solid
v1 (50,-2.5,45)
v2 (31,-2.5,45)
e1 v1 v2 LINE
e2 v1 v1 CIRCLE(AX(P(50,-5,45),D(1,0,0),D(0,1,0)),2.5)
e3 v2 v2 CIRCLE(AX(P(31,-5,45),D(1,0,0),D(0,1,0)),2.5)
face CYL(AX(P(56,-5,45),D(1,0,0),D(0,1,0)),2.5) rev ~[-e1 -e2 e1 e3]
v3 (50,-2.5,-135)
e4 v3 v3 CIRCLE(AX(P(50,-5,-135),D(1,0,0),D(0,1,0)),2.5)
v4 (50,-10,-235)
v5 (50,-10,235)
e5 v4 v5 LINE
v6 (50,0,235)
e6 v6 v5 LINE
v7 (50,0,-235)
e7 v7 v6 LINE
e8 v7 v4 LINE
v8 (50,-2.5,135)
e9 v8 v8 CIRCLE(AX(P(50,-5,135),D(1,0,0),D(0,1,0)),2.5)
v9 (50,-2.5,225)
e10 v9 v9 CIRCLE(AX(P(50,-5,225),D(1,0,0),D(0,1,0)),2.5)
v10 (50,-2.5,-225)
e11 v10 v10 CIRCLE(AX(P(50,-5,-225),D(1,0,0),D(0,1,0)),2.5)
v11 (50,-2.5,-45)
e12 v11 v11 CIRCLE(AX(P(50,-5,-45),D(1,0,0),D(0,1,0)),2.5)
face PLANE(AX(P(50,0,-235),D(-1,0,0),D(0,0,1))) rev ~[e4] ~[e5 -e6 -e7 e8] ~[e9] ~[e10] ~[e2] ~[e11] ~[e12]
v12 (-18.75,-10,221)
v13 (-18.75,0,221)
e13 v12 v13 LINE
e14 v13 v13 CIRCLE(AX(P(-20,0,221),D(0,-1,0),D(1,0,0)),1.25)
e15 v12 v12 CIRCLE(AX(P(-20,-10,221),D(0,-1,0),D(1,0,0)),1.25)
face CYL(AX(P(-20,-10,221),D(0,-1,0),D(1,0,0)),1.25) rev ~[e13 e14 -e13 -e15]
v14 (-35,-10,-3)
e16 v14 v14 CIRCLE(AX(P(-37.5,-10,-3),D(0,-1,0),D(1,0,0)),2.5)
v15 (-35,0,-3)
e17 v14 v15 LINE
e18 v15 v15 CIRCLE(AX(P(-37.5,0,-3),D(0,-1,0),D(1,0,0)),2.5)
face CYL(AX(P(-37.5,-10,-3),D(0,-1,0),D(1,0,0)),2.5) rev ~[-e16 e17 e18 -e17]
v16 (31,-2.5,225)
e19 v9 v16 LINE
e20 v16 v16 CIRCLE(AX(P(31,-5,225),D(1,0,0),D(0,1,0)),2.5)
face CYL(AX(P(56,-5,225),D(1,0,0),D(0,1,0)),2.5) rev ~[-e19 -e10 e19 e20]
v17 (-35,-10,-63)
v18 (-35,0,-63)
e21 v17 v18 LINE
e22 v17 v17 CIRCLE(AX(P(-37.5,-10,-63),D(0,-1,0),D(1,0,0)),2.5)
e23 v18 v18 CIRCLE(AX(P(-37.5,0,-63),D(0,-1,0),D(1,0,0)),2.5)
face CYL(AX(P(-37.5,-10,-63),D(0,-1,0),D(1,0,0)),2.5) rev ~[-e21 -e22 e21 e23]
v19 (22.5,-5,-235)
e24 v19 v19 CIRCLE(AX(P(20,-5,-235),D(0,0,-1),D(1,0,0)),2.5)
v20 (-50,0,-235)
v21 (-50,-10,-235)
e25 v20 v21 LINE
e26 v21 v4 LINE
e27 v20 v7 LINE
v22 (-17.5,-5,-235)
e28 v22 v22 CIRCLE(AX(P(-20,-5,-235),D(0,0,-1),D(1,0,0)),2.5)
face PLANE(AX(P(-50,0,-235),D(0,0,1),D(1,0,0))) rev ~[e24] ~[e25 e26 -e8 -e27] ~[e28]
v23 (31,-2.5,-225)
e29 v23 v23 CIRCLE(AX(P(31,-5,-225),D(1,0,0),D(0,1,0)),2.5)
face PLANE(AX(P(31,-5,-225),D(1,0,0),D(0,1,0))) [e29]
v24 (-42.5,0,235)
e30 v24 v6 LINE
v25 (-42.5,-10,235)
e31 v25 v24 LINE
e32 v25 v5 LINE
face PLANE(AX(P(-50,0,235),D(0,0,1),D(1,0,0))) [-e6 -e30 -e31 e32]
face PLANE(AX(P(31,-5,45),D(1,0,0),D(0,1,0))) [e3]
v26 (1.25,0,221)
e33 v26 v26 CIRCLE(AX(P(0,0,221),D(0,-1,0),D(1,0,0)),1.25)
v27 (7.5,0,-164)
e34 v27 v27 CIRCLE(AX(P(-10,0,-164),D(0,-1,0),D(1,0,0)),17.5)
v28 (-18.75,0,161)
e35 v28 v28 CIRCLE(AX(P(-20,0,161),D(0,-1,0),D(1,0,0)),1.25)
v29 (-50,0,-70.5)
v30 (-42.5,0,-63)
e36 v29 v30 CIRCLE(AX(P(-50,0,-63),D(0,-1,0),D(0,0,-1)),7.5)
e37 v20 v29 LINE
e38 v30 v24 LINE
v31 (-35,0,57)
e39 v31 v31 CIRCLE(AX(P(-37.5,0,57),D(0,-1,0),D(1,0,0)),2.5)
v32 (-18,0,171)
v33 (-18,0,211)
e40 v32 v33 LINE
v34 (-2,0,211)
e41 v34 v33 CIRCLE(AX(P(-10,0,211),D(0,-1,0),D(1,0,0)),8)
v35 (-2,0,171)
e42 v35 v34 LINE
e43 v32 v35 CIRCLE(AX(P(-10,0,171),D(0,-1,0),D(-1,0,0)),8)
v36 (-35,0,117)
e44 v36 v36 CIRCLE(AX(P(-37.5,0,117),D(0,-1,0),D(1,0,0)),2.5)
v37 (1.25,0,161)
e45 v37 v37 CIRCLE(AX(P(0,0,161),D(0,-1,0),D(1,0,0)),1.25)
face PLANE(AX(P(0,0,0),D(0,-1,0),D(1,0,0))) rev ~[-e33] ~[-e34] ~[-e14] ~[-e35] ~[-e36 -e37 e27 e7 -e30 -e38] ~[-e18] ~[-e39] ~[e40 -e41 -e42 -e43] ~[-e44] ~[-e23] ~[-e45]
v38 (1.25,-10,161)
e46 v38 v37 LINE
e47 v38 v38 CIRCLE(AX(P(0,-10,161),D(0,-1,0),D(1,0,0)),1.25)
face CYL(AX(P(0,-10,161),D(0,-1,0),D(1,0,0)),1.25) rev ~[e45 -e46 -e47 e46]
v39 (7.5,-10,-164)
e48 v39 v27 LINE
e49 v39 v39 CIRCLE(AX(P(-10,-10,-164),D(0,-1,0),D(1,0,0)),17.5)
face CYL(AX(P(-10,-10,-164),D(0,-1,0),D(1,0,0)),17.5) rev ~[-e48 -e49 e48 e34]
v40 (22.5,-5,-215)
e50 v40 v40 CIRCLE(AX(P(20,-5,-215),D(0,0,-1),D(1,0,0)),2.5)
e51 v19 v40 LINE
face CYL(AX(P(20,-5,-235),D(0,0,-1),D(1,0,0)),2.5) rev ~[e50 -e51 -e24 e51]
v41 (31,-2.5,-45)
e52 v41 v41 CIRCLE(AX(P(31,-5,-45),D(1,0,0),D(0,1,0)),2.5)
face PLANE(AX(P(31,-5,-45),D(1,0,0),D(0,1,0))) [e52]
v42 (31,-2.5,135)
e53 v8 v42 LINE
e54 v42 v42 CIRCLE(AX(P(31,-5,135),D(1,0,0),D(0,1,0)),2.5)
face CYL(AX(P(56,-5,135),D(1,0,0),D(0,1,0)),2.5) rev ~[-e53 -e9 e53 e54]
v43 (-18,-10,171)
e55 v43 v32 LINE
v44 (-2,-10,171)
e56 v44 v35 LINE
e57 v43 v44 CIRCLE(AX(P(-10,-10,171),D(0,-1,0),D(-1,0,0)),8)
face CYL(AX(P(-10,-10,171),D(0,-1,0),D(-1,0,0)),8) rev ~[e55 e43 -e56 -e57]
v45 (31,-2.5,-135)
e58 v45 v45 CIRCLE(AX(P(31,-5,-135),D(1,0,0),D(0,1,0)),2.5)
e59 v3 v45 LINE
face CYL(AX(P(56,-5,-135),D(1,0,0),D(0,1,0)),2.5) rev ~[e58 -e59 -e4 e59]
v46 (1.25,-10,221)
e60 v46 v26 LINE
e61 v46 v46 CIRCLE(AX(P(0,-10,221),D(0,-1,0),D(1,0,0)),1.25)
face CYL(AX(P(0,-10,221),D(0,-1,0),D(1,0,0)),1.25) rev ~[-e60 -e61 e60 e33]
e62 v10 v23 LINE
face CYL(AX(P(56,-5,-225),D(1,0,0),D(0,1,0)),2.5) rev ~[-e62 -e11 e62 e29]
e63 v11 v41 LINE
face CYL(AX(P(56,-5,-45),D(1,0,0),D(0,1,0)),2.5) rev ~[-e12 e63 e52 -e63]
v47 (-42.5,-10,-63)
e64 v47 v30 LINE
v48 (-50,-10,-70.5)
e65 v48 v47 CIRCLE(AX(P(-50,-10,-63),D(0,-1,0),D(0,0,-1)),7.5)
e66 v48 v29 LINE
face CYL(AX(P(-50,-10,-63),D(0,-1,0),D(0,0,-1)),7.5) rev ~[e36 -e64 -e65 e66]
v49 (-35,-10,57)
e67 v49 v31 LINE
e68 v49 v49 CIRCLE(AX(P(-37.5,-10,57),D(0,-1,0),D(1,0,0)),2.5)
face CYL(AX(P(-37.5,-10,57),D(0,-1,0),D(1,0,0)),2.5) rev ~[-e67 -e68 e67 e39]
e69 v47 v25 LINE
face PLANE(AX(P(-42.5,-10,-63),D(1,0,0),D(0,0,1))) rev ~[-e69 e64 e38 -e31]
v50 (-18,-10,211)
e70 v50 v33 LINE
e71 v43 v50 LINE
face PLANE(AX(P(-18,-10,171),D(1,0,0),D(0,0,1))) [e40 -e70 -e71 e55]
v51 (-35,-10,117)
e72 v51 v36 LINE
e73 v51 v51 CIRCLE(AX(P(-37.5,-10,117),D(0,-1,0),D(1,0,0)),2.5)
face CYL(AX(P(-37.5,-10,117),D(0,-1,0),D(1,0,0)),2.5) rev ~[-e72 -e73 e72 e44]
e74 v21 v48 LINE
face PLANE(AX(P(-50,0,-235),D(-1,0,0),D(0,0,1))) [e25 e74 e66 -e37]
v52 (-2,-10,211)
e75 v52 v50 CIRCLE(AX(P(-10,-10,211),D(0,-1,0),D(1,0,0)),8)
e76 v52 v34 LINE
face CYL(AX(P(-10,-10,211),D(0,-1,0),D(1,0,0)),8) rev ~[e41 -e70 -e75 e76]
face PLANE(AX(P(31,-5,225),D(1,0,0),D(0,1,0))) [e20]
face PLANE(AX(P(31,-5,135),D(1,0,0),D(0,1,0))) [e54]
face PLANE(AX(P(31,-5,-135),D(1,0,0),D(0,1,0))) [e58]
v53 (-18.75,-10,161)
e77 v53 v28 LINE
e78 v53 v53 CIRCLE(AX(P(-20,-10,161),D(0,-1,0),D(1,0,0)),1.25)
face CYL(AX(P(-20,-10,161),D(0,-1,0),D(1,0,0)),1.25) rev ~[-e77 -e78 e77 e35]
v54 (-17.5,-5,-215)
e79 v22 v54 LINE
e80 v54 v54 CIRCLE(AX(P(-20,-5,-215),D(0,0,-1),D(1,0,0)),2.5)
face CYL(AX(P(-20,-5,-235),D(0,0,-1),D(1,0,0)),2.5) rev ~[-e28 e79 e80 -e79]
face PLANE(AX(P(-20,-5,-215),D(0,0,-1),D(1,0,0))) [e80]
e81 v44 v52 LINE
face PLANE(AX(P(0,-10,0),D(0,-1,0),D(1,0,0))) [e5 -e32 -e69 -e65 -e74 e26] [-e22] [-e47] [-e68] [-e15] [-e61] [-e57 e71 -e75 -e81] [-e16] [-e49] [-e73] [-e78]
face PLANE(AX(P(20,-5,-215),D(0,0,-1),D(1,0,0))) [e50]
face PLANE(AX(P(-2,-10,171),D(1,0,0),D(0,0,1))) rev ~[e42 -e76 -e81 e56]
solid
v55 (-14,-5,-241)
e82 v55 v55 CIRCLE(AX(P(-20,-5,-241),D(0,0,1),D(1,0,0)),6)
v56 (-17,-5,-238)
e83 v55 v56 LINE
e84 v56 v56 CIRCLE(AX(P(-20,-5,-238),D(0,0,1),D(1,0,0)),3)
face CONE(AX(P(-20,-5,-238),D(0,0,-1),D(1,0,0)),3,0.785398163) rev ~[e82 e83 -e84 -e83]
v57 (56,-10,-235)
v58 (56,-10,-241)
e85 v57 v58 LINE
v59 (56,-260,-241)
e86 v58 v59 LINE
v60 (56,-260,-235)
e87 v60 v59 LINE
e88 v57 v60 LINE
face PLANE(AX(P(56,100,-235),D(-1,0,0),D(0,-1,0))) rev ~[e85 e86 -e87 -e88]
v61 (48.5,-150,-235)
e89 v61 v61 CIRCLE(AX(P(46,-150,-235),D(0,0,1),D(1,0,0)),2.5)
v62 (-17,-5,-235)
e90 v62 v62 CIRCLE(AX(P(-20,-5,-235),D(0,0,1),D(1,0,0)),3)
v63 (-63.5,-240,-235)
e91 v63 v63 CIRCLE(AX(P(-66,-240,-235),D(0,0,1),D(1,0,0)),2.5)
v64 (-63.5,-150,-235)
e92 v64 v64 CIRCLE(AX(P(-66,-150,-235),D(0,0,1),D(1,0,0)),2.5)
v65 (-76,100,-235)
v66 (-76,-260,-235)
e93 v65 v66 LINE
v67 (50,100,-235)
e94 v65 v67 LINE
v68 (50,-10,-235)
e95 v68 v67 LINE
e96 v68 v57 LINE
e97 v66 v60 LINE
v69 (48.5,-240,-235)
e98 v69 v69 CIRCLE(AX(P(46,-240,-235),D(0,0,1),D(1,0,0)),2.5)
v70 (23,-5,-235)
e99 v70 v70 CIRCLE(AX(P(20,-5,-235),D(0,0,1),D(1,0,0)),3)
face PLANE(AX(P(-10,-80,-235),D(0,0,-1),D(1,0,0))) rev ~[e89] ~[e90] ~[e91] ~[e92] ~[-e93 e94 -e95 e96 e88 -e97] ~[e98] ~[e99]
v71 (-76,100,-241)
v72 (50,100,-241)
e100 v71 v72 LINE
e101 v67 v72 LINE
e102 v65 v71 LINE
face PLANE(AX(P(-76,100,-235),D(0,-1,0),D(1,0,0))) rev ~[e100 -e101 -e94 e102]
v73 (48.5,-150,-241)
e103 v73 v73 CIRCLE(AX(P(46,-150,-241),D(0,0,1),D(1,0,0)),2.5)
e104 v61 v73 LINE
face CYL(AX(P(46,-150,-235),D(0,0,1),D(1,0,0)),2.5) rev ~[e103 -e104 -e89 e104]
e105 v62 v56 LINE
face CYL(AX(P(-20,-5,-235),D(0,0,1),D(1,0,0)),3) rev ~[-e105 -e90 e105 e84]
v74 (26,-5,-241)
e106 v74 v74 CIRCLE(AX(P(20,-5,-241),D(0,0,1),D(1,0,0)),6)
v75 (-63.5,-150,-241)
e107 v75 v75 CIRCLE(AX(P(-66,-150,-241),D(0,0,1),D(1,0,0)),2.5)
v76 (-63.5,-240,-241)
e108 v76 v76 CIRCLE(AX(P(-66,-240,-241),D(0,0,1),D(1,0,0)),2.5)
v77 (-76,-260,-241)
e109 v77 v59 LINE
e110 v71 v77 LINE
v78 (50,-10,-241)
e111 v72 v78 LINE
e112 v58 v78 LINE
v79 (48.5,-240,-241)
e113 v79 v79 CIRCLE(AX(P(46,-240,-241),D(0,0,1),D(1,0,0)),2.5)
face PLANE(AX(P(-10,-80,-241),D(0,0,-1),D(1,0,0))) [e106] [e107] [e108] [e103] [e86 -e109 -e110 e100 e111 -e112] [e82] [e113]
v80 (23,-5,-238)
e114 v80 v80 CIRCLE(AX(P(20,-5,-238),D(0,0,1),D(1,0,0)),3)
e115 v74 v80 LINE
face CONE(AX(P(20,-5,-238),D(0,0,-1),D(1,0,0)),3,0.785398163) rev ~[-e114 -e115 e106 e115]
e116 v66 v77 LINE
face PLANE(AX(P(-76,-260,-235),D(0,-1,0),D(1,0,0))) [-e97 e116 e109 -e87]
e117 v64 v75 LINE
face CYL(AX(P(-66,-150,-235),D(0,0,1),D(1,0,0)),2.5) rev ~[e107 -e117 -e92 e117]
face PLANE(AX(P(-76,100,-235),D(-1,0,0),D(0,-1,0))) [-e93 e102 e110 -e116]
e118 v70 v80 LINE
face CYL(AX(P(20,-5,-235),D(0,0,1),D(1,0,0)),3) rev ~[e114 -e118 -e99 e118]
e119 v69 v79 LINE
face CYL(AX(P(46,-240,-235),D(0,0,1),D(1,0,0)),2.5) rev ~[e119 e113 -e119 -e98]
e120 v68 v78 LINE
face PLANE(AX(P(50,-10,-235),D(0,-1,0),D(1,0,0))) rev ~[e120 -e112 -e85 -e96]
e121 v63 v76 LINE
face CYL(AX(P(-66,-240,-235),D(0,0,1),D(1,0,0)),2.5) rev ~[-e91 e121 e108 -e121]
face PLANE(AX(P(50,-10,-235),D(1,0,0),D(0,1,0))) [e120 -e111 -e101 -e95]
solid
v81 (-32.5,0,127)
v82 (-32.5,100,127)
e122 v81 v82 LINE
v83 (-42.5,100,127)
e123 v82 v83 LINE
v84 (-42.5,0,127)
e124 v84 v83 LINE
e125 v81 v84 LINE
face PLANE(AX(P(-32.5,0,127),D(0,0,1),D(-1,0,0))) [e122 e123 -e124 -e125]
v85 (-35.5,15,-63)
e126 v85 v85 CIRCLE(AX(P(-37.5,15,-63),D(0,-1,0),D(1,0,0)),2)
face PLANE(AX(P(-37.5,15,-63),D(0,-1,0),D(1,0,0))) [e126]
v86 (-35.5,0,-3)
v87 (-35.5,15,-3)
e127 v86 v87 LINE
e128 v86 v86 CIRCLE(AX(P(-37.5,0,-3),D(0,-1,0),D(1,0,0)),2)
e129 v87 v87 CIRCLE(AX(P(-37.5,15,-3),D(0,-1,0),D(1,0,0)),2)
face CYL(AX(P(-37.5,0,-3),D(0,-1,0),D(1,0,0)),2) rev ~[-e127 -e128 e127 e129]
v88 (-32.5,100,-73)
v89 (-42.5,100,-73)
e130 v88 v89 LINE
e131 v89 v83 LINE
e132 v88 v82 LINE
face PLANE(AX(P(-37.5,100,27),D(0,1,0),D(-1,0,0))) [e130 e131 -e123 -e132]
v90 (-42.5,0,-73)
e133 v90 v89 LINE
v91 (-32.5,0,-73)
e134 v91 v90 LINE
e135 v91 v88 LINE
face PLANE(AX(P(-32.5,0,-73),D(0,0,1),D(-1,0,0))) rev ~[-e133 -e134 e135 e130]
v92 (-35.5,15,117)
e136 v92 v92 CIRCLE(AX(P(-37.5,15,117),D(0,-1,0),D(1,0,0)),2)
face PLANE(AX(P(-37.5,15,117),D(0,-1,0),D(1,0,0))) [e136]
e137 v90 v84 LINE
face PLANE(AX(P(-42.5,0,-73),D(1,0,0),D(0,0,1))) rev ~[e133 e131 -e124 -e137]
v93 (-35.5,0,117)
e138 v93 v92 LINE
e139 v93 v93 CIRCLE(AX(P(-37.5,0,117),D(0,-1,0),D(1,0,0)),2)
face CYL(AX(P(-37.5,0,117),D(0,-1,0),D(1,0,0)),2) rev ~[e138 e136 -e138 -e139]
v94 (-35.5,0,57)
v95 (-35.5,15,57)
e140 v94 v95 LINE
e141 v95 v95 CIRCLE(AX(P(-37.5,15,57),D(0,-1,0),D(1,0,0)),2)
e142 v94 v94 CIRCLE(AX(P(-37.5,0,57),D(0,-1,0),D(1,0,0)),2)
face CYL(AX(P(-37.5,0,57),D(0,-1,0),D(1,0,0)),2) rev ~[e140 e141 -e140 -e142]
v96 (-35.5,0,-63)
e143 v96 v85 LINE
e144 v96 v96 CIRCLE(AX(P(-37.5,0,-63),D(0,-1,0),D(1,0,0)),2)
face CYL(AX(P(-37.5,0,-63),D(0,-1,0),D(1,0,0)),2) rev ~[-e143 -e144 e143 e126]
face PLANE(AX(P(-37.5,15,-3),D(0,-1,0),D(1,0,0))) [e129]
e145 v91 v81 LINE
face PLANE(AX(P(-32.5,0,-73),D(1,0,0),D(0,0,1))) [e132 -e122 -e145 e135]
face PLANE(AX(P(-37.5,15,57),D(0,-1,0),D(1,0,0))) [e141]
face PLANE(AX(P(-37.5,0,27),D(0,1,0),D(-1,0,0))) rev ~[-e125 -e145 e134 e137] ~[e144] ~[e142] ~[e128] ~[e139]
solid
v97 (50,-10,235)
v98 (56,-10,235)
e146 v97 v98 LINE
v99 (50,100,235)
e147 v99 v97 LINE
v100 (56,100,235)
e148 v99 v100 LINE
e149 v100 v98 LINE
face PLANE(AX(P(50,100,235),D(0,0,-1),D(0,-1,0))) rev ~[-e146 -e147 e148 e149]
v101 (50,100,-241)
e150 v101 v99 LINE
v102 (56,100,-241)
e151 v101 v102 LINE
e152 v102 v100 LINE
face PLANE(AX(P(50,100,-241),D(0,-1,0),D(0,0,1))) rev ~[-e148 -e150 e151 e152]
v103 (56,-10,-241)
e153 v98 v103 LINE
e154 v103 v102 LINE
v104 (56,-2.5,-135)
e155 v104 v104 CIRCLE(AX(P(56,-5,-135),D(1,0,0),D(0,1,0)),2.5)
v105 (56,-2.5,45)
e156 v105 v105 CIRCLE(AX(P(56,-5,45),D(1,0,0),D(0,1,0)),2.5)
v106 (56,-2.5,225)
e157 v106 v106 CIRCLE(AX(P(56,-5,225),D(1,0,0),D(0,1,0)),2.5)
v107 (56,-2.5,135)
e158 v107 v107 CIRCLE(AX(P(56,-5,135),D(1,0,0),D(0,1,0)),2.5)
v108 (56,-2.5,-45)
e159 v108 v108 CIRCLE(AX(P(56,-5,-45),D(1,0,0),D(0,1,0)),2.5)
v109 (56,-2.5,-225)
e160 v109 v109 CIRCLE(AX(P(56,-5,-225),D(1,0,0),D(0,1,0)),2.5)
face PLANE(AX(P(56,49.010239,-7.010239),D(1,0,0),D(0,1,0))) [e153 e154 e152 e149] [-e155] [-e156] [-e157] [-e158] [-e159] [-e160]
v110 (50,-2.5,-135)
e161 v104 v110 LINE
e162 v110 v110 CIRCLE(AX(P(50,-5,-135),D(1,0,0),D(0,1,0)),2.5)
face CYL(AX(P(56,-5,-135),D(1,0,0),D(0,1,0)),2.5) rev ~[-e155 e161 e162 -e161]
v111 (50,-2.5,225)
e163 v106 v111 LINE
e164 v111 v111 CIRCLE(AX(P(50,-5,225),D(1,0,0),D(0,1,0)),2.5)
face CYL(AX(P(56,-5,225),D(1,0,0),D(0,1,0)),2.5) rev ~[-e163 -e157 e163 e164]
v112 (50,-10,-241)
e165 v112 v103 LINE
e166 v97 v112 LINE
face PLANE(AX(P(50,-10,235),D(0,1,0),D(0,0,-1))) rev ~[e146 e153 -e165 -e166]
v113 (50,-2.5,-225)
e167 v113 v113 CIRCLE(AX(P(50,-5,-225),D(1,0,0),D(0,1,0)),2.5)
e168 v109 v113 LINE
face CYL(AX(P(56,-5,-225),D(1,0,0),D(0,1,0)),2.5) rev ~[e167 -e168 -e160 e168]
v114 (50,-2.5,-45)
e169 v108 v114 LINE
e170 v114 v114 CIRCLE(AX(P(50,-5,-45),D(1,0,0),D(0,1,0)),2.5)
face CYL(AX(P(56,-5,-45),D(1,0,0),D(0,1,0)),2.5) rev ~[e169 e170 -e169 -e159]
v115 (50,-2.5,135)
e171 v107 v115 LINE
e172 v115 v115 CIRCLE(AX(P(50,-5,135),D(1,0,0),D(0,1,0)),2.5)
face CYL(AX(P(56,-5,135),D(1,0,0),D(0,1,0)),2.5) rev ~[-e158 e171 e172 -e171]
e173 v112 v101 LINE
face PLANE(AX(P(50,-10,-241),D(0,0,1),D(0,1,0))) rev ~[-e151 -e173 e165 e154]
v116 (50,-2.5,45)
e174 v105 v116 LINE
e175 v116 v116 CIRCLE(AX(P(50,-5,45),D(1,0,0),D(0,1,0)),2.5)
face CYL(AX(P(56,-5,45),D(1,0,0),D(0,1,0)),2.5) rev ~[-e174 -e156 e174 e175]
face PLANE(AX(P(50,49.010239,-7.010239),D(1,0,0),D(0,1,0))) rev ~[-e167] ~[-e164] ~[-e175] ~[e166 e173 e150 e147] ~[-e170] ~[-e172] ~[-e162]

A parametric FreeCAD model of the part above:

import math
import FreeCAD as App
import Part
import Sketcher

V = App.Vector
Q = App.Units.Quantity


def edges_at(feature, points):
    """Names of the edges that pass closest to the given points."""
    edges = feature.Shape.Edges
    near = lambda p: min(range(len(edges)), key=lambda i: edges[i].distToShape(Part.Vertex(*p))[0])
    return sorted({f"Edge{near(p) + 1}" for p in points})


def add_polygon(sketch, points):
    """Adds a closed chain of lines whose ends are joined by coincident constraints."""
    first, n = sketch.GeometryCount, len(points)
    for a, b in zip(points, points[1:] + points[:1]):
        sketch.addGeometry(Part.LineSegment(App.Vector(*a, 0), App.Vector(*b, 0)), False)
    for i in range(n):
        sketch.addConstraint(Sketcher.Constraint("Coincident", first + i, 2, first + (i + 1) % n, 1))

doc = App.newDocument("Part")
params = doc.addObject("Spreadsheet::Sheet", "Params")
for row, (alias, value) in enumerate([
    ("sketch1_width", "100 mm"),
    ("sketch1_height", "470 mm"),
    ("pad1_length", "10 mm"),
    ("sketch2_diameter", "35 mm"),
    ("sketch2_radius", "8 mm"),
    ("sketch2_diameter2", "2.5 mm"),
    ("sketch2_height", "40 mm"),
    ("pocket1_length", "25 mm"),
    ("sketch3_radius", "7.5 mm"),
    ("sketch3_height", "298 mm"),
    ("pocket2_length", "25 mm"),
    ("sketch4_diameter", "5 mm"),
    ("pocket3_length", "25 mm"),
    ("sketch5_diameter", "5 mm"),
    ("pocket4_length", "20 mm"),
    ("sketch6_width", "10 mm"),
    ("sketch6_height", "200 mm"),
    ("pad2_length", "100 mm"),
    ("sketch7_diameter", "4 mm"),
    ("pocket5_length", "15 mm"),
    ("sketch8_width", "132 mm"),
    ("sketch8_height", "360 mm"),
    ("pad3_length", "6 mm"),
    ("sketch9_diameter", "6 mm"),
    ("pocket6_length", "25 mm"),
    ("chamfer_size", "3 mm"),
    ("chamfer_size2", "3 mm"),
    ("sketch10_diameter", "5 mm"),
    ("pocket7_length", "25 mm"),
    ("sketch11_width", "6 mm"),
    ("sketch11_height", "110 mm"),
    ("pocket8_length", "25 mm"),
    ("sketch12_width", "110 mm"),
    ("sketch12_height", "476 mm"),
    ("pad4_length", "6 mm"),
    ("sketch13_diameter", "5 mm"),
    ("pad5_length", "25 mm"),
], start=1):
    params.set(f"A{row}", alias)
    params.set(f"B{row}", "=" + value)
    params.setAlias(f"B{row}", alias)

body = doc.addObject("PartDesign::Body", "Body")

sketch1 = body.newObject("Sketcher::SketchObject", "Sketch")
sketch1.AttachmentSupport = (doc.getObject("XZ_Plane"), [""])
sketch1.MapMode = "FlatFace"
add_polygon(sketch1, [(-50, 235), (-50, -235), (50, -235), (50, 235)])
sketch1.addConstraint(Sketcher.Constraint("Vertical", 0))
sketch1.addConstraint(Sketcher.Constraint("Horizontal", 1))
sketch1.addConstraint(Sketcher.Constraint("Vertical", 2))
sketch1.addConstraint(Sketcher.Constraint("Horizontal", 3))
sketch1.addConstraint(Sketcher.Constraint("Symmetric", 0, 2, 2, 2, -1, 1))
sketch1.addConstraint(Sketcher.Constraint("DistanceX", 1, 1, 1, 2, Q("100 mm")))
sketch1.addConstraint(Sketcher.Constraint("DistanceY", 0, 2, 0, 1, Q("470 mm")))
sketch1.setExpression("Constraints[9]", "Params.sketch1_width")
sketch1.setExpression("Constraints[10]", "Params.sketch1_height")
pad1 = body.newObject("PartDesign::Pad", "Pad")
pad1.Profile = sketch1
pad1.setExpression("Length", "Params.pad1_length")

sketch2 = body.newObject("Sketcher::SketchObject", "Sketch001")
sketch2.AttachmentSupport = (doc.getObject("XZ_Plane"), [""])
sketch2.MapMode = "FlatFace"
sketch2.AttachmentOffset = App.Placement(V(0, 0, 10), App.Rotation())
sketch2.addGeometry(Part.Circle(V(-10, -164, 0), V(0, 0, 1), 17.5), False)
sketch2.addGeometry(Part.LineSegment(V(-18, 211, 0), V(-18, 171, 0)), False)
sketch2.addGeometry(Part.ArcOfCircle(Part.Circle(V(-10, 171, 0), V(0, 0, 1), 8), math.radians(180), math.radians(360)), False)
sketch2.addGeometry(Part.LineSegment(V(-2, 171, 0), V(-2, 211, 0)), False)
sketch2.addGeometry(Part.ArcOfCircle(Part.Circle(V(-10, 211, 0), V(0, 0, 1), 8), math.radians(0), math.radians(180)), False)
sketch2.addGeometry(Part.Circle(V(0, 221, 0), V(0, 0, 1), 1.2), False)
sketch2.addGeometry(Part.Circle(V(0, 161, 0), V(0, 0, 1), 1.2), False)
sketch2.addGeometry(Part.Circle(V(-20, 221, 0), V(0, 0, 1), 1.2), False)
sketch2.addGeometry(Part.Circle(V(-20, 161, 0), V(0, 0, 1), 1.2), False)
sketch2.addConstraint(Sketcher.Constraint("Tangent", 1, 2, 2, 1))
sketch2.addConstraint(Sketcher.Constraint("Tangent", 2, 2, 3, 1))
sketch2.addConstraint(Sketcher.Constraint("Tangent", 3, 2, 4, 1))
sketch2.addConstraint(Sketcher.Constraint("Tangent", 4, 2, 1, 1))
sketch2.addConstraint(Sketcher.Constraint("Vertical", 1))
sketch2.addConstraint(Sketcher.Constraint("Vertical", 3))
sketch2.addConstraint(Sketcher.Constraint("Equal", 5, 6))
sketch2.addConstraint(Sketcher.Constraint("Equal", 6, 7))
sketch2.addConstraint(Sketcher.Constraint("Equal", 7, 8))
sketch2.addConstraint(Sketcher.Constraint("PointOnObject", 5, 3, -2))
sketch2.addConstraint(Sketcher.Constraint("PointOnObject", 6, 3, -2))
sketch2.addConstraint(Sketcher.Constraint("Horizontal", 5, 3, 7, 3))
sketch2.addConstraint(Sketcher.Constraint("Horizontal", 6, 3, 8, 3))
sketch2.addConstraint(Sketcher.Constraint("Vertical", 0, 3, 2, 3))
sketch2.addConstraint(Sketcher.Constraint("Vertical", 7, 3, 8, 3))
sketch2.addConstraint(Sketcher.Constraint("Diameter", 0, Q("35 mm")))
sketch2.addConstraint(Sketcher.Constraint("Radius", 2, Q("8 mm")))
sketch2.addConstraint(Sketcher.Constraint("Diameter", 5, Q("2.5 mm")))
sketch2.addConstraint(Sketcher.Constraint("DistanceY", 1, 2, 1, 1, Q("40 mm")))
sketch2.addConstraint(Sketcher.Constraint("DistanceX", 0, 3, -1, 1, Q("10 mm")))
sketch2.addConstraint(Sketcher.Constraint("DistanceY", 0, 3, -1, 1, Q("164 mm")))
sketch2.addConstraint(Sketcher.Constraint("DistanceY", -1, 1, 2, 3, Q("171 mm")))
sketch2.addConstraint(Sketcher.Constraint("DistanceY", -1, 1, 5, 3, Q("221 mm")))
sketch2.addConstraint(Sketcher.Constraint("DistanceY", -1, 1, 6, 3, Q("161 mm")))
sketch2.addConstraint(Sketcher.Constraint("DistanceX", 7, 3, -1, 1, Q("20 mm")))
sketch2.setExpression("Constraints[15]", "Params.sketch2_diameter")
sketch2.setExpression("Constraints[16]", "Params.sketch2_radius")
sketch2.setExpression("Constraints[17]", "Params.sketch2_diameter2")
sketch2.setExpression("Constraints[18]", "Params.sketch2_height")
pocket1 = body.newObject("PartDesign::Pocket", "Pocket")
pocket1.Profile = sketch2
pocket1.setExpression("Length", "Params.pocket1_length")

sketch3 = body.newObject("Sketcher::SketchObject", "Sketch002")
sketch3.AttachmentSupport = (doc.getObject("XZ_Plane"), [""])
sketch3.MapMode = "FlatFace"
sketch3.AttachmentOffset = App.Placement(V(0, 0, 10), App.Rotation())
sketch3.addGeometry(Part.ArcOfCircle(Part.Circle(V(-50, -63, 0), V(0, 0, 1), 8), math.radians(-90), math.radians(0)), False)
sketch3.addGeometry(Part.LineSegment(V(-42, -63, 0), V(-42, 235, 0)), False)
sketch3.addGeometry(Part.LineSegment(V(-42, 235, 0), V(-50, 235, 0)), False)
sketch3.addGeometry(Part.LineSegment(V(-50, 235, 0), V(-50, -70, 0)), False)
sketch3.addConstraint(Sketcher.Constraint("Tangent", 0, 2, 1, 1))
sketch3.addConstraint(Sketcher.Constraint("Coincident", 1, 2, 2, 1))
sketch3.addConstraint(Sketcher.Constraint("Coincident", 2, 2, 3, 1))
sketch3.addConstraint(Sketcher.Constraint("Coincident", 3, 2, 0, 1))
sketch3.addConstraint(Sketcher.Constraint("Vertical", 1))
sketch3.addConstraint(Sketcher.Constraint("Horizontal", 2))
sketch3.addConstraint(Sketcher.Constraint("Vertical", 3))
sketch3.addConstraint(Sketcher.Constraint("Vertical", 0, 3, 2, 2))
sketch3.addConstraint(Sketcher.Constraint("Radius", 0, Q("7.5 mm")))
sketch3.addConstraint(Sketcher.Constraint("DistanceY", 1, 1, 1, 2, Q("298 mm")))
sketch3.addConstraint(Sketcher.Constraint("DistanceX", 0, 3, -1, 1, Q("50 mm")))
sketch3.addConstraint(Sketcher.Constraint("DistanceY", 0, 3, -1, 1, Q("63 mm")))
sketch3.setExpression("Constraints[8]", "Params.sketch3_radius")
sketch3.setExpression("Constraints[9]", "Params.sketch3_height")
pocket2 = body.newObject("PartDesign::Pocket", "Pocket001")
pocket2.Profile = sketch3
pocket2.setExpression("Length", "Params.pocket2_length")

sketch4 = body.newObject("Sketcher::SketchObject", "Sketch003")
sketch4.AttachmentSupport = (doc.getObject("XZ_Plane"), [""])
sketch4.MapMode = "FlatFace"
sketch4.AttachmentOffset = App.Placement(V(0, 0, 10), App.Rotation())
sketch4.addGeometry(Part.Circle(V(-37.5, -63, 0), V(0, 0, 1), 2.5), False)
sketch4.addGeometry(Part.Circle(V(-37.5, -3, 0), V(0, 0, 1), 2.5), False)
sketch4.addGeometry(Part.Circle(V(-37.5, 57, 0), V(0, 0, 1), 2.5), False)
sketch4.addGeometry(Part.Circle(V(-37.5, 117, 0), V(0, 0, 1), 2.5), False)
sketch4.addConstraint(Sketcher.Constraint("Equal", 0, 1))
sketch4.addConstraint(Sketcher.Constraint("Equal", 1, 2))
sketch4.addConstraint(Sketcher.Constraint("Equal", 2, 3))
sketch4.addConstraint(Sketcher.Constraint("Vertical", 0, 3, 1, 3))
sketch4.addConstraint(Sketcher.Constraint("Vertical", 1, 3, 2, 3))
sketch4.addConstraint(Sketcher.Constraint("Vertical", 2, 3, 3, 3))
sketch4.addConstraint(Sketcher.Constraint("Diameter", 0, Q("5 mm")))
sketch4.addConstraint(Sketcher.Constraint("DistanceY", 0, 3, -1, 1, Q("63 mm")))
sketch4.addConstraint(Sketcher.Constraint("DistanceY", 1, 3, -1, 1, Q("3 mm")))
sketch4.addConstraint(Sketcher.Constraint("DistanceY", -1, 1, 2, 3, Q("57 mm")))
sketch4.addConstraint(Sketcher.Constraint("DistanceY", -1, 1, 3, 3, Q("117 mm")))
sketch4.addConstraint(Sketcher.Constraint("DistanceX", 0, 3, -1, 1, Q("37.5 mm")))
sketch4.setExpression("Constraints[6]", "Params.sketch4_diameter")
pocket3 = body.newObject("PartDesign::Pocket", "Pocket002")
pocket3.Profile = sketch4
pocket3.setExpression("Length", "Params.pocket3_length")

sketch5 = body.newObject("Sketcher::SketchObject", "Sketch004")
sketch5.AttachmentSupport = (doc.getObject("XY_Plane"), [""])
sketch5.MapMode = "FlatFace"
sketch5.AttachmentOffset = App.Placement(V(0, 0, -235), App.Rotation())
sketch5.addGeometry(Part.Circle(V(-20, -5, 0), V(0, 0, 1), 2.5), False)
sketch5.addGeometry(Part.Circle(V(20, -5, 0), V(0, 0, 1), 2.5), False)
sketch5.addConstraint(Sketcher.Constraint("Equal", 0, 1))
sketch5.addConstraint(Sketcher.Constraint("Symmetric", 0, 3, 1, 3, -2))
sketch5.addConstraint(Sketcher.Constraint("Diameter", 0, Q("5 mm")))
sketch5.addConstraint(Sketcher.Constraint("DistanceX", 0, 3, -1, 1, Q("20 mm")))
sketch5.addConstraint(Sketcher.Constraint("DistanceY", 0, 3, -1, 1, Q("5 mm")))
sketch5.setExpression("Constraints[2]", "Params.sketch5_diameter")
pocket4 = body.newObject("PartDesign::Pocket", "Pocket003")
pocket4.Profile = sketch5
pocket4.setExpression("Length", "Params.pocket4_length")
pocket4.Reversed = True
body2 = doc.addObject("PartDesign::Body", "Body001")

sketch6 = body2.newObject("Sketcher::SketchObject", "Sketch005")
sketch6.AttachmentSupport = (doc.getObject("XZ_Plane001"), [""])
sketch6.MapMode = "FlatFace"
add_polygon(sketch6, [(-32, 127), (-32, -73), (-42, -73), (-42, 127)])
sketch6.addConstraint(Sketcher.Constraint("Vertical", 0))
sketch6.addConstraint(Sketcher.Constraint("Horizontal", 1))
sketch6.addConstraint(Sketcher.Constraint("Vertical", 2))
sketch6.addConstraint(Sketcher.Constraint("Horizontal", 3))
sketch6.addConstraint(Sketcher.Constraint("DistanceX", 1, 2, 1, 1, Q("10 mm")))
sketch6.addConstraint(Sketcher.Constraint("DistanceY", 0, 2, 0, 1, Q("200 mm")))
sketch6.addConstraint(Sketcher.Constraint("DistanceY", 0, 2, -1, 1, Q("73 mm")))
sketch6.addConstraint(Sketcher.Constraint("DistanceX", 0, 2, -1, 1, Q("32.5 mm")))
sketch6.setExpression("Constraints[8]", "Params.sketch6_width")
sketch6.setExpression("Constraints[9]", "Params.sketch6_height")
pad2 = body2.newObject("PartDesign::Pad", "Pad001")
pad2.Profile = sketch6
pad2.setExpression("Length", "Params.pad2_length")
pad2.Reversed = True

sketch7 = body2.newObject("Sketcher::SketchObject", "Sketch006")
sketch7.AttachmentSupport = (doc.getObject("XZ_Plane001"), [""])
sketch7.MapMode = "FlatFace"
sketch7.addGeometry(Part.Circle(V(-37.5, 117, 0), V(0, 0, 1), 2), False)
sketch7.addGeometry(Part.Circle(V(-37.5, 57, 0), V(0, 0, 1), 2), False)
sketch7.addGeometry(Part.Circle(V(-37.5, -3, 0), V(0, 0, 1), 2), False)
sketch7.addGeometry(Part.Circle(V(-37.5, -63, 0), V(0, 0, 1), 2), False)
sketch7.addConstraint(Sketcher.Constraint("Equal", 0, 1))
sketch7.addConstraint(Sketcher.Constraint("Equal", 1, 2))
sketch7.addConstraint(Sketcher.Constraint("Equal", 2, 3))
sketch7.addConstraint(Sketcher.Constraint("Vertical", 0, 3, 1, 3))
sketch7.addConstraint(Sketcher.Constraint("Vertical", 1, 3, 2, 3))
sketch7.addConstraint(Sketcher.Constraint("Vertical", 2, 3, 3, 3))
sketch7.addConstraint(Sketcher.Constraint("Diameter", 0, Q("4 mm")))
sketch7.addConstraint(Sketcher.Constraint("DistanceY", -1, 1, 0, 3, Q("117 mm")))
sketch7.addConstraint(Sketcher.Constraint("DistanceY", -1, 1, 1, 3, Q("57 mm")))
sketch7.addConstraint(Sketcher.Constraint("DistanceY", 2, 3, -1, 1, Q("3 mm")))
sketch7.addConstraint(Sketcher.Constraint("DistanceY", 3, 3, -1, 1, Q("63 mm")))
sketch7.addConstraint(Sketcher.Constraint("DistanceX", 0, 3, -1, 1, Q("37.5 mm")))
sketch7.setExpression("Constraints[6]", "Params.sketch7_diameter")
pocket5 = body2.newObject("PartDesign::Pocket", "Pocket004")
pocket5.Profile = sketch7
pocket5.setExpression("Length", "Params.pocket5_length")
body3 = doc.addObject("PartDesign::Body", "Body002")

sketch8 = body3.newObject("Sketcher::SketchObject", "Sketch007")
sketch8.AttachmentSupport = (doc.getObject("XY_Plane002"), [""])
sketch8.MapMode = "FlatFace"
sketch8.AttachmentOffset = App.Placement(V(0, 0, -235), App.Rotation())
add_polygon(sketch8, [(-76, -260), (-76, 100), (56, 100), (56, -260)])
sketch8.addConstraint(Sketcher.Constraint("Vertical", 0))
sketch8.addConstraint(Sketcher.Constraint("Horizontal", 1))
sketch8.addConstraint(Sketcher.Constraint("Vertical", 2))
sketch8.addConstraint(Sketcher.Constraint("Horizontal", 3))
sketch8.addConstraint(Sketcher.Constraint("DistanceX", 1, 1, 1, 2, Q("132 mm")))
sketch8.addConstraint(Sketcher.Constraint("DistanceY", 0, 1, 0, 2, Q("360 mm")))
sketch8.addConstraint(Sketcher.Constraint("DistanceX", 0, 2, -1, 1, Q("76 mm")))
sketch8.addConstraint(Sketcher.Constraint("DistanceY", -1, 1, 0, 2, Q("100 mm")))
sketch8.setExpression("Constraints[8]", "Params.sketch8_width")
sketch8.setExpression("Constraints[9]", "Params.sketch8_height")
pad3 = body3.newObject("PartDesign::Pad", "Pad002")
pad3.Profile = sketch8
pad3.setExpression("Length", "Params.pad3_length")
pad3.Reversed = True

sketch9 = body3.newObject("Sketcher::SketchObject", "Sketch008")
sketch9.AttachmentSupport = (doc.getObject("XY_Plane002"), [""])
sketch9.MapMode = "FlatFace"
sketch9.AttachmentOffset = App.Placement(V(0, 0, -235), App.Rotation())
sketch9.addGeometry(Part.Circle(V(20, -5, 0), V(0, 0, 1), 3), False)
sketch9.addGeometry(Part.Circle(V(-20, -5, 0), V(0, 0, 1), 3), False)
sketch9.addConstraint(Sketcher.Constraint("Equal", 0, 1))
sketch9.addConstraint(Sketcher.Constraint("Symmetric", 0, 3, 1, 3, -2))
sketch9.addConstraint(Sketcher.Constraint("Diameter", 0, Q("6 mm")))
sketch9.addConstraint(Sketcher.Constraint("DistanceX", -1, 1, 0, 3, Q("20 mm")))
sketch9.addConstraint(Sketcher.Constraint("DistanceY", 0, 3, -1, 1, Q("5 mm")))
sketch9.setExpression("Constraints[2]", "Params.sketch9_diameter")
pocket6 = body3.newObject("PartDesign::Pocket", "Pocket005")
pocket6.Profile = sketch9
pocket6.setExpression("Length", "Params.pocket6_length")
doc.recompute()

chamfer = body3.newObject("PartDesign::Chamfer", "Chamfer")
chamfer.Base = (pocket6, edges_at(pocket6, [(-23, -5, -241), (17, -5, -241)]))
chamfer.ChamferType = "Two distances"
chamfer.setExpression("Size", "Params.chamfer_size")
chamfer.setExpression("Size2", "Params.chamfer_size2")

sketch10 = body3.newObject("Sketcher::SketchObject", "Sketch009")
sketch10.AttachmentSupport = (doc.getObject("XY_Plane002"), [""])
sketch10.MapMode = "FlatFace"
sketch10.AttachmentOffset = App.Placement(V(0, 0, -235), App.Rotation())
sketch10.addGeometry(Part.Circle(V(-66, -240, 0), V(0, 0, 1), 2.5), False)
sketch10.addGeometry(Part.Circle(V(-66, -150, 0), V(0, 0, 1), 2.5), False)
sketch10.addGeometry(Part.Circle(V(46, -150, 0), V(0, 0, 1), 2.5), False)
sketch10.addGeometry(Part.Circle(V(46, -240, 0), V(0, 0, 1), 2.5), False)
sketch10.addConstraint(Sketcher.Constraint("Equal", 0, 1))
sketch10.addConstraint(Sketcher.Constraint("Equal", 1, 2))
sketch10.addConstraint(Sketcher.Constraint("Equal", 2, 3))
sketch10.addConstraint(Sketcher.Constraint("Horizontal", 1, 3, 2, 3))
sketch10.addConstraint(Sketcher.Constraint("Horizontal", 0, 3, 3, 3))
sketch10.addConstraint(Sketcher.Constraint("Vertical", 0, 3, 1, 3))
sketch10.addConstraint(Sketcher.Constraint("Vertical", 2, 3, 3, 3))
sketch10.addConstraint(Sketcher.Constraint("Diameter", 0, Q("5 mm")))
sketch10.addConstraint(Sketcher.Constraint("DistanceX", 0, 3, -1, 1, Q("66 mm")))
sketch10.addConstraint(Sketcher.Constraint("DistanceY", 0, 3, -1, 1, Q("240 mm")))
sketch10.addConstraint(Sketcher.Constraint("DistanceY", 1, 3, -1, 1, Q("150 mm")))
sketch10.addConstraint(Sketcher.Constraint("DistanceX", -1, 1, 2, 3, Q("46 mm")))
sketch10.setExpression("Constraints[7]", "Params.sketch10_diameter")
pocket7 = body3.newObject("PartDesign::Pocket", "Pocket006")
pocket7.Profile = sketch10
pocket7.setExpression("Length", "Params.pocket7_length")

sketch11 = body3.newObject("Sketcher::SketchObject", "Sketch010")
sketch11.AttachmentSupport = (doc.getObject("XY_Plane002"), [""])
sketch11.MapMode = "FlatFace"
sketch11.AttachmentOffset = App.Placement(V(0, 0, -235), App.Rotation())
add_polygon(sketch11, [(50, 100), (50, -10), (56, -10), (56, 100)])
sketch11.addConstraint(Sketcher.Constraint("Vertical", 0))
sketch11.addConstraint(Sketcher.Constraint("Horizontal", 1))
sketch11.addConstraint(Sketcher.Constraint("Vertical", 2))
sketch11.addConstraint(Sketcher.Constraint("Horizontal", 3))
sketch11.addConstraint(Sketcher.Constraint("DistanceX", 1, 1, 1, 2, Q("6 mm")))
sketch11.addConstraint(Sketcher.Constraint("DistanceY", 0, 2, 0, 1, Q("110 mm")))
sketch11.addConstraint(Sketcher.Constraint("DistanceX", -1, 1, 0, 2, Q("50 mm")))
sketch11.addConstraint(Sketcher.Constraint("DistanceY", 0, 2, -1, 1, Q("10 mm")))
sketch11.setExpression("Constraints[8]", "Params.sketch11_width")
sketch11.setExpression("Constraints[9]", "Params.sketch11_height")
pocket8 = body3.newObject("PartDesign::Pocket", "Pocket007")
pocket8.Profile = sketch11
pocket8.setExpression("Length", "Params.pocket8_length")
body4 = doc.addObject("PartDesign::Body", "Body003")

sketch12 = body4.newObject("Sketcher::SketchObject", "Sketch011")
sketch12.AttachmentSupport = (doc.getObject("YZ_Plane003"), [""])
sketch12.MapMode = "FlatFace"
sketch12.AttachmentOffset = App.Placement(V(0, 0, 50), App.Rotation())
add_polygon(sketch12, [(-10, -241), (100, -241), (100, 235), (-10, 235)])
sketch12.addConstraint(Sketcher.Constraint("Horizontal", 0))
sketch12.addConstraint(Sketcher.Constraint("Vertical", 1))
sketch12.addConstraint(Sketcher.Constraint("Horizontal", 2))
sketch12.addConstraint(Sketcher.Constraint("Vertical", 3))
sketch12.addConstraint(Sketcher.Constraint("DistanceX", 0, 1, 0, 2, Q("110 mm")))
sketch12.addConstraint(Sketcher.Constraint("DistanceY", 1, 1, 1, 2, Q("476 mm")))
sketch12.addConstraint(Sketcher.Constraint("DistanceX", -1, 1, 0, 2, Q("100 mm")))
sketch12.addConstraint(Sketcher.Constraint("DistanceY", 0, 2, -1, 1, Q("241 mm")))
sketch12.setExpression("Constraints[8]", "Params.sketch12_width")
sketch12.setExpression("Constraints[9]", "Params.sketch12_height")
pad4 = body4.newObject("PartDesign::Pad", "Pad003")
pad4.Profile = sketch12
pad4.setExpression("Length", "Params.pad4_length")
body5 = doc.addObject("PartDesign::Body", "Body004")
body5.AllowCompound = True

sketch13 = body5.newObject("Sketcher::SketchObject", "Sketch012")
sketch13.AttachmentSupport = (doc.getObject("YZ_Plane004"), [""])
sketch13.MapMode = "FlatFace"
sketch13.AttachmentOffset = App.Placement(V(0, 0, 56), App.Rotation())
sketch13.addGeometry(Part.Circle(V(-5, 225, 0), V(0, 0, 1), 2.5), False)
sketch13.addGeometry(Part.Circle(V(-5, 135, 0), V(0, 0, 1), 2.5), False)
sketch13.addGeometry(Part.Circle(V(-5, 45, 0), V(0, 0, 1), 2.5), False)
sketch13.addGeometry(Part.Circle(V(-5, -45, 0), V(0, 0, 1), 2.5), False)
sketch13.addGeometry(Part.Circle(V(-5, -135, 0), V(0, 0, 1), 2.5), False)
sketch13.addGeometry(Part.Circle(V(-5, -225, 0), V(0, 0, 1), 2.5), False)
sketch13.addConstraint(Sketcher.Constraint("Equal", 0, 1))
sketch13.addConstraint(Sketcher.Constraint("Equal", 1, 2))
sketch13.addConstraint(Sketcher.Constraint("Equal", 2, 3))
sketch13.addConstraint(Sketcher.Constraint("Equal", 3, 4))
sketch13.addConstraint(Sketcher.Constraint("Equal", 4, 5))
sketch13.addConstraint(Sketcher.Constraint("Symmetric", 2, 3, 3, 3, -1))
sketch13.addConstraint(Sketcher.Constraint("Symmetric", 1, 3, 4, 3, -1))
sketch13.addConstraint(Sketcher.Constraint("Symmetric", 0, 3, 5, 3, -1))
sketch13.addConstraint(Sketcher.Constraint("Vertical", 0, 3, 1, 3))
sketch13.addConstraint(Sketcher.Constraint("Vertical", 1, 3, 2, 3))
sketch13.addConstraint(Sketcher.Constraint("Diameter", 0, Q("5 mm")))
sketch13.addConstraint(Sketcher.Constraint("DistanceX", 0, 3, -1, 1, Q("5 mm")))
sketch13.addConstraint(Sketcher.Constraint("DistanceY", -1, 1, 0, 3, Q("225 mm")))
sketch13.addConstraint(Sketcher.Constraint("DistanceY", -1, 1, 1, 3, Q("135 mm")))
sketch13.addConstraint(Sketcher.Constraint("DistanceY", -1, 1, 2, 3, Q("45 mm")))
sketch13.setExpression("Constraints[10]", "Params.sketch13_diameter")
pad5 = body5.newObject("PartDesign::Pad", "Pad004")
pad5.Profile = sketch13
pad5.setExpression("Length", "Params.pad5_length")
pad5.Reversed = True
doc.recompute()

body6 = doc.addObject("PartDesign::Body", "Body005")
body6.BaseFeature = body5
boolean = body.newObject("PartDesign::Boolean", "Boolean")
boolean.Type = "Cut"
boolean.addObjects([body6])
doc.recompute()

boolean2 = body4.newObject("PartDesign::Boolean", "Boolean001")
boolean2.Type = "Cut"
boolean2.addObjects([body5])

doc.recompute()
